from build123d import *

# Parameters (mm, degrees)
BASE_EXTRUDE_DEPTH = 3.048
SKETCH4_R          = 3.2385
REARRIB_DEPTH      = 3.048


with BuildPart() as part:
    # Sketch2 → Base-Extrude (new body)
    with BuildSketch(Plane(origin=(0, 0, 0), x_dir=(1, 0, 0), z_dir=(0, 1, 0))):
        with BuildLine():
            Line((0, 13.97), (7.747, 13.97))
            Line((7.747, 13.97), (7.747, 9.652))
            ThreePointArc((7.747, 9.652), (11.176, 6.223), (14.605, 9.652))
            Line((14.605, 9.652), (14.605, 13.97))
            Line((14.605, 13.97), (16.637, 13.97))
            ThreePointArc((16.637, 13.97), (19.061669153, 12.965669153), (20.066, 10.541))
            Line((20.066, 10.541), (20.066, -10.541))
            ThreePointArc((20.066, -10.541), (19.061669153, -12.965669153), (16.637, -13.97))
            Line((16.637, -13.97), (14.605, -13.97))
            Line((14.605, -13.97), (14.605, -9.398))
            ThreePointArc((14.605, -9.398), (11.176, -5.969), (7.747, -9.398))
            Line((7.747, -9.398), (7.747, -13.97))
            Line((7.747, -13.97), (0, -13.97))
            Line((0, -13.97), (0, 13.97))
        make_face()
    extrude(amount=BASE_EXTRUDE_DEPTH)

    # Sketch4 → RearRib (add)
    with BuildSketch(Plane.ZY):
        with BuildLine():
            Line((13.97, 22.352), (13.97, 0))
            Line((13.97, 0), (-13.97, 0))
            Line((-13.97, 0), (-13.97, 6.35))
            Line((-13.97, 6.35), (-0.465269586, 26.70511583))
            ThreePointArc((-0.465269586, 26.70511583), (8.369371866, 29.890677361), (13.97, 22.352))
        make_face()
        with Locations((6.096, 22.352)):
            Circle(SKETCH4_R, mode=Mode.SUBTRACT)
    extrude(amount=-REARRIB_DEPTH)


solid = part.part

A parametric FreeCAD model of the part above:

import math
import FreeCAD as App
import Part
import Sketcher
from FreeCAD import Vector
Q = App.Units.Quantity

doc = App.newDocument("Part")
body = doc.addObject("PartDesign::Body", "Body")

# Sketch on XZ plane
sketch1 = body.newObject("Sketcher::SketchObject", "Sketch")
sketch1.AttachmentSupport = (doc.getObject("XZ_Plane"), [""])
sketch1.MapMode = "FlatFace"
sketch1.addGeometry([
    Part.LineSegment(Vector(7.7, -14, 0), Vector(0, -14, 0)),  # 0
    Part.LineSegment(Vector(0, -14, 0), Vector(0, 14, 0)),  # 1
    Part.LineSegment(Vector(0, 14, 0), Vector(7.7, 14, 0)),  # 2
    Part.LineSegment(Vector(7.7, 14, 0), Vector(7.7, 9.4, 0)),  # 3
    Part.ArcOfCircle(Part.Circle(Vector(11.2, 9.4, 0), Vector(0, 0, 1), 3.4), math.radians(180), math.radians(360)),  # 4
    Part.LineSegment(Vector(14.6, 9.4, 0), Vector(14.6, 14, 0)),  # 5
    Part.LineSegment(Vector(14.6, 14, 0), Vector(16.6, 14, 0)),  # 6
    Part.ArcOfCircle(Part.Circle(Vector(16.6, 10.5, 0), Vector(0, 0, 1), 3.4), math.radians(0), math.radians(90)),  # 7
    Part.LineSegment(Vector(20.1, 10.5, 0), Vector(20.1, -10.5, 0)),  # 8
    Part.ArcOfCircle(Part.Circle(Vector(16.6, -10.5, 0), Vector(0, 0, 1), 3.4), math.radians(-90), math.radians(0)),  # 9
    Part.LineSegment(Vector(16.6, -14, 0), Vector(14.6, -14, 0)),  # 10
    Part.LineSegment(Vector(14.6, -14, 0), Vector(14.6, -9.7, 0)),  # 11
    Part.ArcOfCircle(Part.Circle(Vector(11.2, -9.7, 0), Vector(0, 0, 1), 3.4), math.radians(0), math.radians(180)),  # 12
    Part.LineSegment(Vector(7.7, -9.7, 0), Vector(7.7, -14, 0)),  # 13
], False)
sketch1.addConstraint([
    Sketcher.Constraint("Coincident", 0, 2, 1, 1),
    Sketcher.Constraint("Coincident", 1, 2, 2, 1),
    Sketcher.Constraint("Coincident", 2, 2, 3, 1),
    Sketcher.Constraint("Tangent", 3, 2, 4, 1),
    Sketcher.Constraint("Tangent", 4, 2, 5, 1),
    Sketcher.Constraint("Coincident", 5, 2, 6, 1),
    Sketcher.Constraint("Tangent", 6, 2, 7, 2),
    Sketcher.Constraint("Tangent", 7, 1, 8, 1),
    Sketcher.Constraint("Tangent", 8, 2, 9, 2),
    Sketcher.Constraint("Tangent", 9, 1, 10, 1),
    Sketcher.Constraint("Coincident", 10, 2, 11, 1),
    Sketcher.Constraint("Tangent", 11, 2, 12, 1),
    Sketcher.Constraint("Tangent", 12, 2, 13, 1),
    Sketcher.Constraint("Coincident", 13, 2, 0, 1),
    Sketcher.Constraint("Horizontal", 0),
    Sketcher.Constraint("Vertical", 1),
    Sketcher.Constraint("Horizontal", 2),
    Sketcher.Constraint("Vertical", 3),
    Sketcher.Constraint("Vertical", 5),
    Sketcher.Constraint("Horizontal", 6),
    Sketcher.Constraint("Vertical", 8),
    Sketcher.Constraint("Horizontal", 10),
    Sketcher.Constraint("Vertical", 11),
    Sketcher.Constraint("Vertical", 13),
    Sketcher.Constraint("Equal", 4, 7),
    Sketcher.Constraint("Equal", 7, 9),
    Sketcher.Constraint("Equal", 9, 12),
    Sketcher.Constraint("Symmetric", 0, 2, 1, 2, -1, 1),
    Sketcher.Constraint("Symmetric", 5, 2, 10, 2, -1),
    Sketcher.Constraint("Horizontal", 2, 2, 5, 2),
    Sketcher.Constraint("DistanceY", 1, 1, 1, 2, Q("1.1 in")),
    Sketcher.Constraint("Radius", 4, Q("0.135 in")),
    Sketcher.Constraint("DistanceX", 6, 1, 6, 2, Q("0.08 in")),
    Sketcher.Constraint("DistanceY", 3, 2, 3, 1, Q("0.18 in")),
    Sketcher.Constraint("DistanceY", 11, 1, 11, 2, Q("0.17 in")),
    Sketcher.Constraint("DistanceX", 0, 2, 0, 1, Q("0.305 in")),
])
pad1 = body.newObject("PartDesign::Pad", "Pad")
pad1.Profile = sketch1
pad1.Length = Q("0.12 in")
pad1.Reversed = True

# Sketch on YZ plane
sketch2 = body.newObject("Sketcher::SketchObject", "Sketch001")
sketch2.AttachmentSupport = (doc.getObject("YZ_Plane"), [""])
sketch2.MapMode = "FlatFace"
sketch2.addGeometry([
    Part.LineSegment(Vector(0, 14, 0), Vector(22.4, 14, 0)),  # 0
    Part.ArcOfCircle(Part.Circle(Vector(22.4, 6.1, 0), Vector(0, 0, 1), 7.9), math.radians(-56), math.radians(90)),  # 1
    Part.LineSegment(Vector(26.7, -0.5, 0), Vector(6.3, -14, 0)),  # 2
    Part.LineSegment(Vector(6.3, -14, 0), Vector(0, -14, 0)),  # 3
    Part.LineSegment(Vector(0, -14, 0), Vector(0, 14, 0)),  # 4
    Part.Circle(Vector(22.4, 6.1, 0), Vector(0, 0, 1), 3.2),  # 5
], False)
sketch2.addConstraint([
    Sketcher.Constraint("Tangent", 0, 2, 1, 2),
    Sketcher.Constraint("Tangent", 1, 1, 2, 1),
    Sketcher.Constraint("Coincident", 2, 2, 3, 1),
    Sketcher.Constraint("Coincident", 3, 2, 4, 1),
    Sketcher.Constraint("Coincident", 4, 2, 0, 1),
    Sketcher.Constraint("Horizontal", 0),
    Sketcher.Constraint("Horizontal", 3),
    Sketcher.Constraint("Vertical", 4),
    Sketcher.Constraint("Coincident", 5, 3, 1, 3),
    Sketcher.Constraint("Symmetric", 3, 2, 4, 2, -1, 1),
    Sketcher.Constraint("Radius", 1, Q("0.31 in")),
    Sketcher.Constraint("Diameter", 5, Q("0.255 in")),
    Sketcher.Constraint("DistanceY", 4, 1, 4, 2, Q("1.1 in")),
    Sketcher.Constraint("DistanceX", 0, 1, 0, 2, Q("0.88 in")),
    Sketcher.Constraint("DistanceX", 3, 2, 3, 1, Q("0.25 in")),
])
pad2 = body.newObject("PartDesign::Pad", "Pad001")
pad2.Profile = sketch2
pad2.Length = Q("0.12 in")

doc.recompute()
